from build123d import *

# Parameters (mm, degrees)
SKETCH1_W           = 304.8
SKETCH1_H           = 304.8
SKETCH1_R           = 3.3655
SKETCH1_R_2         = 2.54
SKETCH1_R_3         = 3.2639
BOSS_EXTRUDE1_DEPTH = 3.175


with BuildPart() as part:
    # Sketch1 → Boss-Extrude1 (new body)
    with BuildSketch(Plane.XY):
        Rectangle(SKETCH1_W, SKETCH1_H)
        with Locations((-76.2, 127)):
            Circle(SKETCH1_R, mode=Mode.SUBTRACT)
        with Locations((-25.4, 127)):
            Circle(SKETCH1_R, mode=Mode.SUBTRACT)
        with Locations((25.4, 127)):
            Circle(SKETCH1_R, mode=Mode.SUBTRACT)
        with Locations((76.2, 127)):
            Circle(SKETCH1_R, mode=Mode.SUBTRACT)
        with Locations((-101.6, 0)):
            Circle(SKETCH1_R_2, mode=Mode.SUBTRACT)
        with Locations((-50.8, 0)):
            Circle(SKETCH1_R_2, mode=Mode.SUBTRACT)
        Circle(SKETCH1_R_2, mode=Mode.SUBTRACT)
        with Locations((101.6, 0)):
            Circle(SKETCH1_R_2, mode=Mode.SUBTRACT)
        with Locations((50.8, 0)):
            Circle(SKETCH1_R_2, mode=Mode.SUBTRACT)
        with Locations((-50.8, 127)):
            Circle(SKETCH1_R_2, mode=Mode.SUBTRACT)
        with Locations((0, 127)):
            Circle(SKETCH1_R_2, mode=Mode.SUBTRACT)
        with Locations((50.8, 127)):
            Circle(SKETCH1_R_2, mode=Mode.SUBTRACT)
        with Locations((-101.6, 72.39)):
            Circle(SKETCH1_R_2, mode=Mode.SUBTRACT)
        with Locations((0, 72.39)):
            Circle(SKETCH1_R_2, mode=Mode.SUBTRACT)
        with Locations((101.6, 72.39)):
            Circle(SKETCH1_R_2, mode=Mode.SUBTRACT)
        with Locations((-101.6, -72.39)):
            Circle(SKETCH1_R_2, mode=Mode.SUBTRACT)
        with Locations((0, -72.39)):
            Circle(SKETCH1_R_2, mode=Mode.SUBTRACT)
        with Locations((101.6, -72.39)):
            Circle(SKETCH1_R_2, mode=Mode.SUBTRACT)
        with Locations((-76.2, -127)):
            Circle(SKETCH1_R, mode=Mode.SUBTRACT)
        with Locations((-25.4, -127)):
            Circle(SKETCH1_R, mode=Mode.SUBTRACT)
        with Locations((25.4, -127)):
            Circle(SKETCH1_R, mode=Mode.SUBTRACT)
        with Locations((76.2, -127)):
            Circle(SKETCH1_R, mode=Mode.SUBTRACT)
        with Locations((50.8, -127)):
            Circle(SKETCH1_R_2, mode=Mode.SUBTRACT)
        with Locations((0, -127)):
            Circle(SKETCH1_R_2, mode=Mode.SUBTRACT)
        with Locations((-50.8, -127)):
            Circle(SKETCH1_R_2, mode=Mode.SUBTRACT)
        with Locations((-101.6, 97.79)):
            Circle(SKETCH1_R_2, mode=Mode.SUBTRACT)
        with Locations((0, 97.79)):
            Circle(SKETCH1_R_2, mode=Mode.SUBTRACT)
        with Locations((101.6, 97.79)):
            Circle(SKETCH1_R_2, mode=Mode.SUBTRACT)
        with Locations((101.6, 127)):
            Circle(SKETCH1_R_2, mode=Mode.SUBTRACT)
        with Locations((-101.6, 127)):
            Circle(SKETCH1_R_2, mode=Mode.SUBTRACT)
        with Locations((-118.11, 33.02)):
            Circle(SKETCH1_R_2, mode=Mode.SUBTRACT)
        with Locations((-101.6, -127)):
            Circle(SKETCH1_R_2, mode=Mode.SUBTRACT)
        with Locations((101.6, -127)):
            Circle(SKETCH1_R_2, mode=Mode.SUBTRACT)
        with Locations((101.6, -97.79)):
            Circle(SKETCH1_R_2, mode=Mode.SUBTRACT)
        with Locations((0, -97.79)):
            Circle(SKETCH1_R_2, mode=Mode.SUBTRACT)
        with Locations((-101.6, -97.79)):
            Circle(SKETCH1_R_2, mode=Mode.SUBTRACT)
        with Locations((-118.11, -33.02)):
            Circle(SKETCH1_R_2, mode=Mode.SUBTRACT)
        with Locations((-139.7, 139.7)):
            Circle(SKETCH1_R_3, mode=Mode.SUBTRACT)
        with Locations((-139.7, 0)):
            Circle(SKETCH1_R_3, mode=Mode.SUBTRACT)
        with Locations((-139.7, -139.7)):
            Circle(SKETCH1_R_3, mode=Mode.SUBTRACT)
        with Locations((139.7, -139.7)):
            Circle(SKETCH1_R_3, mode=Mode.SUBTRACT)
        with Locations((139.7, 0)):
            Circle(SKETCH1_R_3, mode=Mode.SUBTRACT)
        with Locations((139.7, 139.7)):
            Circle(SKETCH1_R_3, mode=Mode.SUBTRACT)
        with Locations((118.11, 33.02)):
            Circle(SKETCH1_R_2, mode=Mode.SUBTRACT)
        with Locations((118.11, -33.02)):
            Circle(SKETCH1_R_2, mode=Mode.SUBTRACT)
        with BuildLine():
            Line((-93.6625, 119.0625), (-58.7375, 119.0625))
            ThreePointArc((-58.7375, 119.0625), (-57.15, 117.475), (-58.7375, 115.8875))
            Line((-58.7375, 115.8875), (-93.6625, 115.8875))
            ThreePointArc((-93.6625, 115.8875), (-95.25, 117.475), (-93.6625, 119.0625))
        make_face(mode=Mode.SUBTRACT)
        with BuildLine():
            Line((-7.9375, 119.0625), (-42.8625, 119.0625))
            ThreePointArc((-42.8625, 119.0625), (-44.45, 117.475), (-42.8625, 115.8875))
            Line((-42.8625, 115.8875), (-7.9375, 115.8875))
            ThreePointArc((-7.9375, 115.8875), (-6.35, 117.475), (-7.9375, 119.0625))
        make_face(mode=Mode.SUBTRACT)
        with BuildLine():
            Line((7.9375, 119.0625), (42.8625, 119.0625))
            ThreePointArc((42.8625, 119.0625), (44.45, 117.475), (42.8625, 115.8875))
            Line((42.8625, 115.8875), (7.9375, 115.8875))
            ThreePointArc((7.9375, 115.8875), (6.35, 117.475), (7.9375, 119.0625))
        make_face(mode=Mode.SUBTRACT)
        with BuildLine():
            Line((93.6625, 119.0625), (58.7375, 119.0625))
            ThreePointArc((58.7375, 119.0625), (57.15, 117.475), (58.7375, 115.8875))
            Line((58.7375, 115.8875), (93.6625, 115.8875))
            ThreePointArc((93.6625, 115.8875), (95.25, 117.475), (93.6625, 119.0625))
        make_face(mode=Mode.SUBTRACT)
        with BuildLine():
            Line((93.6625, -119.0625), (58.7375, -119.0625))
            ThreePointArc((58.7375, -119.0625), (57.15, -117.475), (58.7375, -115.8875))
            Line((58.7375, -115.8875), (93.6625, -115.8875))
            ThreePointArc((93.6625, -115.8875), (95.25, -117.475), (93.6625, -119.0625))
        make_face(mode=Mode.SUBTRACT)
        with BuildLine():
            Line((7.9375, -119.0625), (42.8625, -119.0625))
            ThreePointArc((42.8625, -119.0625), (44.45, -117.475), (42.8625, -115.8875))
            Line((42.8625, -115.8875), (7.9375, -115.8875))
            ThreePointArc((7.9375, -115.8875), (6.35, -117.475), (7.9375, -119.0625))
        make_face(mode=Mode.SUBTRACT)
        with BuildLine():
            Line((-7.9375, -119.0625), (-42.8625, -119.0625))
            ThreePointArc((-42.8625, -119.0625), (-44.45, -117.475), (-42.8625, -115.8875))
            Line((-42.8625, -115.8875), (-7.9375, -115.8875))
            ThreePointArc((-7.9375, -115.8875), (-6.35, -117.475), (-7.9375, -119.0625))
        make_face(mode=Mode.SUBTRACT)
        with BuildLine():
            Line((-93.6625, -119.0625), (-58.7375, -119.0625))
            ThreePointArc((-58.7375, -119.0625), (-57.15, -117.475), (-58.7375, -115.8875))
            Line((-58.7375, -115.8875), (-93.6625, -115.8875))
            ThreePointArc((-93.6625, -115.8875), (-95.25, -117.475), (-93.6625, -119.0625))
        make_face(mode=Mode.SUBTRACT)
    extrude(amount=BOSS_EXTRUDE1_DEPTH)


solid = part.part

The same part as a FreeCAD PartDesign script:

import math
import FreeCAD as App
import Part
import Sketcher
Q = App.Units.Quantity


def add_polygon(sketch, points):
    """Adds a closed chain of lines whose ends are joined by coincident constraints."""
    first, n = sketch.GeometryCount, len(points)
    for a, b in zip(points, points[1:] + points[:1]):
        sketch.addGeometry(Part.LineSegment(App.Vector(*a, 0), App.Vector(*b, 0)), False)
    for i in range(n):
        sketch.addConstraint(Sketcher.Constraint("Coincident", first + i, 2, first + (i + 1) % n, 1))

doc = App.newDocument("Part")
body = doc.addObject("PartDesign::Body", "Body")

sketch1 = body.newObject("Sketcher::SketchObject", "Sketch")
sketch1.AttachmentSupport = (doc.getObject("XY_Plane"), [""])
sketch1.MapMode = "FlatFace"
add_polygon(sketch1, [(-152.4, 152.4), (-152.4, -152.4), (152.4, -152.4), (152.4, 152.4)])
sketch1.addGeometry(Part.Circle(App.Vector(-139.7, -139.7, 0), App.Vector(0, 0, 1), 3.2639), False)
sketch1.addGeometry(Part.Circle(App.Vector(-101.6, -127, 0), App.Vector(0, 0, 1), 2.54), False)
sketch1.addGeometry(Part.Circle(App.Vector(-76.2, -127, 0), App.Vector(0, 0, 1), 3.3655), False)
sketch1.addGeometry(Part.LineSegment(App.Vector(-58.7375, -119.0625, 0), App.Vector(-93.6625, -119.0625, 0)), False)
sketch1.addGeometry(Part.ArcOfCircle(Part.Circle(App.Vector(-93.6625, -117.475, 0), App.Vector(0, 0, 1), 1.5875), math.radians(90), math.radians(270)), False)
sketch1.addGeometry(Part.LineSegment(App.Vector(-93.6625, -115.8875, 0), App.Vector(-58.7375, -115.8875, 0)), False)
sketch1.addGeometry(Part.ArcOfCircle(Part.Circle(App.Vector(-58.7375, -117.475, 0), App.Vector(0, 0, 1), 1.5875), math.radians(-90), math.radians(90)), False)
sketch1.addGeometry(Part.Circle(App.Vector(-101.6, -97.79, 0), App.Vector(0, 0, 1), 2.54), False)
sketch1.addGeometry(Part.Circle(App.Vector(-101.6, -72.39, 0), App.Vector(0, 0, 1), 2.54), False)
sketch1.addGeometry(Part.Circle(App.Vector(-50.8, -127, 0), App.Vector(0, 0, 1), 2.54), False)
sketch1.addGeometry(Part.Circle(App.Vector(-25.4, -127, 0), App.Vector(0, 0, 1), 3.3655), False)
sketch1.addGeometry(Part.ArcOfCircle(Part.Circle(App.Vector(-7.9375, -117.475, 0), App.Vector(0, 0, 1), 1.5875), math.radians(-90), math.radians(90)), False)
sketch1.addGeometry(Part.LineSegment(App.Vector(-7.9375, -119.0625, 0), App.Vector(-42.8625, -119.0625, 0)), False)
sketch1.addGeometry(Part.ArcOfCircle(Part.Circle(App.Vector(-42.8625, -117.475, 0), App.Vector(0, 0, 1), 1.5875), math.radians(90), math.radians(270)), False)
sketch1.addGeometry(Part.LineSegment(App.Vector(-42.8625, -115.8875, 0), App.Vector(-7.9375, -115.8875, 0)), False)
sketch1.addGeometry(Part.Circle(App.Vector(-118.11, -33.02, 0), App.Vector(0, 0, 1), 2.54), False)
sketch1.addGeometry(Part.Circle(App.Vector(0, -127, 0), App.Vector(0, 0, 1), 2.54), False)
sketch1.addGeometry(Part.Circle(App.Vector(25.4, -127, 0), App.Vector(0, 0, 1), 3.3655), False)
sketch1.addGeometry(Part.LineSegment(App.Vector(42.8625, -119.0625, 0), App.Vector(7.9375, -119.0625, 0)), False)
sketch1.addGeometry(Part.ArcOfCircle(Part.Circle(App.Vector(7.9375, -117.475, 0), App.Vector(0, 0, 1), 1.5875), math.radians(90), math.radians(270)), False)
sketch1.addGeometry(Part.LineSegment(App.Vector(7.9375, -115.8875, 0), App.Vector(42.8625, -115.8875, 0)), False)
sketch1.addGeometry(Part.ArcOfCircle(Part.Circle(App.Vector(42.8625, -117.475, 0), App.Vector(0, 0, 1), 1.5875), math.radians(-90), math.radians(90)), False)
sketch1.addGeometry(Part.Circle(App.Vector(50.8, -127, 0), App.Vector(0, 0, 1), 2.54), False)
sketch1.addGeometry(Part.Circle(App.Vector(0, -97.79, 0), App.Vector(0, 0, 1), 2.54), False)
sketch1.addGeometry(Part.Circle(App.Vector(0, -72.39, 0), App.Vector(0, 0, 1), 2.54), False)
sketch1.addGeometry(Part.Circle(App.Vector(76.2, -127, 0), App.Vector(0, 0, 1), 3.3655), False)
sketch1.addGeometry(Part.Circle(App.Vector(101.6, -127, 0), App.Vector(0, 0, 1), 2.54), False)
sketch1.addGeometry(Part.ArcOfCircle(Part.Circle(App.Vector(93.6625, -117.475, 0), App.Vector(0, 0, 1), 1.5875), math.radians(-90), math.radians(90)), False)
sketch1.addGeometry(Part.LineSegment(App.Vector(93.6625, -119.0625, 0), App.Vector(58.7375, -119.0625, 0)), False)
sketch1.addGeometry(Part.ArcOfCircle(Part.Circle(App.Vector(58.7375, -117.475, 0), App.Vector(0, 0, 1), 1.5875), math.radians(90), math.radians(270)), False)
sketch1.addGeometry(Part.LineSegment(App.Vector(58.7375, -115.8875, 0), App.Vector(93.6625, -115.8875, 0)), False)
sketch1.addGeometry(Part.Circle(App.Vector(139.7, -139.7, 0), App.Vector(0, 0, 1), 3.2639), False)
sketch1.addGeometry(Part.Circle(App.Vector(101.6, -97.79, 0), App.Vector(0, 0, 1), 2.54), False)
sketch1.addGeometry(Part.Circle(App.Vector(101.6, -72.39, 0), App.Vector(0, 0, 1), 2.54), False)
sketch1.addGeometry(Part.Circle(App.Vector(118.11, -33.02, 0), App.Vector(0, 0, 1), 2.54), False)
sketch1.addGeometry(Part.Circle(App.Vector(-139.7, 0, 0), App.Vector(0, 0, 1), 3.2639), False)
sketch1.addGeometry(Part.Circle(App.Vector(-118.11, 33.02, 0), App.Vector(0, 0, 1), 2.54), False)
sketch1.addGeometry(Part.Circle(App.Vector(-101.6, 0, 0), App.Vector(0, 0, 1), 2.54), False)
sketch1.addGeometry(Part.Circle(App.Vector(-50.8, 0, 0), App.Vector(0, 0, 1), 2.54), False)
sketch1.addGeometry(Part.Circle(App.Vector(-101.6, 72.39, 0), App.Vector(0, 0, 1), 2.54), False)
sketch1.addGeometry(Part.Circle(App.Vector(-101.6, 97.79, 0), App.Vector(0, 0, 1), 2.54), False)
sketch1.addGeometry(Part.Circle(App.Vector(-139.7, 139.7, 0), App.Vector(0, 0, 1), 3.2639), False)
sketch1.addGeometry(Part.ArcOfCircle(Part.Circle(App.Vector(-93.6625, 117.475, 0), App.Vector(0, 0, 1), 1.5875), math.radians(90), math.radians(270)), False)
sketch1.addGeometry(Part.LineSegment(App.Vector(-93.6625, 119.0625, 0), App.Vector(-58.7375, 119.0625, 0)), False)
sketch1.addGeometry(Part.ArcOfCircle(Part.Circle(App.Vector(-58.7375, 117.475, 0), App.Vector(0, 0, 1), 1.5875), math.radians(-90), math.radians(90)), False)
sketch1.addGeometry(Part.LineSegment(App.Vector(-58.7375, 115.8875, 0), App.Vector(-93.6625, 115.8875, 0)), False)
sketch1.addGeometry(Part.Circle(App.Vector(-101.6, 127, 0), App.Vector(0, 0, 1), 2.54), False)
sketch1.addGeometry(Part.Circle(App.Vector(-76.2, 127, 0), App.Vector(0, 0, 1), 3.3655), False)
sketch1.addGeometry(Part.Circle(App.Vector(-50.8, 127, 0), App.Vector(0, 0, 1), 2.54), False)
sketch1.addGeometry(Part.LineSegment(App.Vector(-42.8625, 119.0625, 0), App.Vector(-7.9375, 119.0625, 0)), False)
sketch1.addGeometry(Part.ArcOfCircle(Part.Circle(App.Vector(-7.9375, 117.475, 0), App.Vector(0, 0, 1), 1.5875), math.radians(-90), math.radians(90)), False)
sketch1.addGeometry(Part.LineSegment(App.Vector(-7.9375, 115.8875, 0), App.Vector(-42.8625, 115.8875, 0)), False)
sketch1.addGeometry(Part.ArcOfCircle(Part.Circle(App.Vector(-42.8625, 117.475, 0), App.Vector(0, 0, 1), 1.5875), math.radians(90), math.radians(270)), False)
sketch1.addGeometry(Part.Circle(App.Vector(-25.4, 127, 0), App.Vector(0, 0, 1), 3.3655), False)
sketch1.addGeometry(Part.Circle(App.Vector(0, 0, 0), App.Vector(0, 0, 1), 2.54), False)
sketch1.addGeometry(Part.Circle(App.Vector(50.8, 0, 0), App.Vector(0, 0, 1), 2.54), False)
sketch1.addGeometry(Part.Circle(App.Vector(101.6, 0, 0), App.Vector(0, 0, 1), 2.54), False)
sketch1.addGeometry(Part.Circle(App.Vector(139.7, 0, 0), App.Vector(0, 0, 1), 3.2639), False)
sketch1.addGeometry(Part.Circle(App.Vector(118.11, 33.02, 0), App.Vector(0, 0, 1), 2.54), False)
sketch1.addGeometry(Part.Circle(App.Vector(0, 72.39, 0), App.Vector(0, 0, 1), 2.54), False)
sketch1.addGeometry(Part.Circle(App.Vector(0, 97.79, 0), App.Vector(0, 0, 1), 2.54), False)
sketch1.addGeometry(Part.ArcOfCircle(Part.Circle(App.Vector(7.9375, 117.475, 0), App.Vector(0, 0, 1), 1.5875), math.radians(90), math.radians(270)), False)
sketch1.addGeometry(Part.LineSegment(App.Vector(7.9375, 119.0625, 0), App.Vector(42.8625, 119.0625, 0)), False)
sketch1.addGeometry(Part.ArcOfCircle(Part.Circle(App.Vector(42.8625, 117.475, 0), App.Vector(0, 0, 1), 1.5875), math.radians(-90), math.radians(90)), False)
sketch1.addGeometry(Part.LineSegment(App.Vector(42.8625, 115.8875, 0), App.Vector(7.9375, 115.8875, 0)), False)
sketch1.addGeometry(Part.Circle(App.Vector(0, 127, 0), App.Vector(0, 0, 1), 2.54), False)
sketch1.addGeometry(Part.Circle(App.Vector(25.4, 127, 0), App.Vector(0, 0, 1), 3.3655), False)
sketch1.addGeometry(Part.Circle(App.Vector(50.8, 127, 0), App.Vector(0, 0, 1), 2.54), False)
sketch1.addGeometry(Part.Circle(App.Vector(101.6, 72.39, 0), App.Vector(0, 0, 1), 2.54), False)
sketch1.addGeometry(Part.Circle(App.Vector(101.6, 97.79, 0), App.Vector(0, 0, 1), 2.54), False)
sketch1.addGeometry(Part.LineSegment(App.Vector(58.7375, 119.0625, 0), App.Vector(93.6625, 119.0625, 0)), False)
sketch1.addGeometry(Part.ArcOfCircle(Part.Circle(App.Vector(93.6625, 117.475, 0), App.Vector(0, 0, 1), 1.5875), math.radians(-90), math.radians(90)), False)
sketch1.addGeometry(Part.LineSegment(App.Vector(93.6625, 115.8875, 0), App.Vector(58.7375, 115.8875, 0)), False)
sketch1.addGeometry(Part.ArcOfCircle(Part.Circle(App.Vector(58.7375, 117.475, 0), App.Vector(0, 0, 1), 1.5875), math.radians(90), math.radians(270)), False)
sketch1.addGeometry(Part.Circle(App.Vector(76.2, 127, 0), App.Vector(0, 0, 1), 3.3655), False)
sketch1.addGeometry(Part.Circle(App.Vector(101.6, 127, 0), App.Vector(0, 0, 1), 2.54), False)
sketch1.addGeometry(Part.Circle(App.Vector(139.7, 139.7, 0), App.Vector(0, 0, 1), 3.2639), False)
sketch1.addConstraint([
    Sketcher.Constraint("Tangent", 7, 2, 8, 2),
    Sketcher.Constraint("Tangent", 8, 1, 9, 1),
    Sketcher.Constraint("Tangent", 9, 2, 10, 2),
    Sketcher.Constraint("Tangent", 10, 1, 7, 1),
    Sketcher.Constraint("Tangent", 15, 1, 16, 1),
    Sketcher.Constraint("Tangent", 16, 2, 17, 2),
    Sketcher.Constraint("Tangent", 17, 1, 18, 1),
    Sketcher.Constraint("Tangent", 18, 2, 15, 2),
    Sketcher.Constraint("Tangent", 22, 2, 23, 2),
    Sketcher.Constraint("Tangent", 23, 1, 24, 1),
    Sketcher.Constraint("Tangent", 24, 2, 25, 2),
    Sketcher.Constraint("Tangent", 25, 1, 22, 1),
    Sketcher.Constraint("Tangent", 31, 1, 32, 1),
    Sketcher.Constraint("Tangent", 32, 2, 33, 2),
    Sketcher.Constraint("Tangent", 33, 1, 34, 1),
    Sketcher.Constraint("Tangent", 34, 2, 31, 2),
    Sketcher.Constraint("Tangent", 46, 1, 47, 1),
    Sketcher.Constraint("Tangent", 47, 2, 48, 2),
    Sketcher.Constraint("Tangent", 48, 1, 49, 1),
    Sketcher.Constraint("Tangent", 49, 2, 46, 2),
    Sketcher.Constraint("Tangent", 53, 2, 54, 2),
    Sketcher.Constraint("Tangent", 54, 1, 55, 1),
    Sketcher.Constraint("Tangent", 55, 2, 56, 2),
    Sketcher.Constraint("Tangent", 56, 1, 53, 1),
    Sketcher.Constraint("Tangent", 65, 1, 66, 1),
    Sketcher.Constraint("Tangent", 66, 2, 67, 2),
    Sketcher.Constraint("Tangent", 67, 1, 68, 1),
    Sketcher.Constraint("Tangent", 68, 2, 65, 2),
    Sketcher.Constraint("Tangent", 74, 2, 75, 2),
    Sketcher.Constraint("Tangent", 75, 1, 76, 1),
    Sketcher.Constraint("Tangent", 76, 2, 77, 2),
    Sketcher.Constraint("Tangent", 77, 1, 74, 1),
    Sketcher.Constraint("Vertical", 0),
    Sketcher.Constraint("Horizontal", 1),
    Sketcher.Constraint("Vertical", 2),
    Sketcher.Constraint("Horizontal", 3),
    Sketcher.Constraint("Horizontal", 7),
    Sketcher.Constraint("Horizontal", 9),
    Sketcher.Constraint("Horizontal", 16),
    Sketcher.Constraint("Horizontal", 18),
    Sketcher.Constraint("Horizontal", 22),
    Sketcher.Constraint("Horizontal", 24),
    Sketcher.Constraint("Horizontal", 32),
    Sketcher.Constraint("Horizontal", 34),
    Sketcher.Constraint("Horizontal", 47),
    Sketcher.Constraint("Horizontal", 49),
    Sketcher.Constraint("Horizontal", 53),
    Sketcher.Constraint("Horizontal", 55),
    Sketcher.Constraint("Horizontal", 66),
    Sketcher.Constraint("Horizontal", 68),
    Sketcher.Constraint("Horizontal", 74),
    Sketcher.Constraint("Horizontal", 76),
    Sketcher.Constraint("Coincident", 58, 3, -1, 1),
    Sketcher.Constraint("Equal", 5, 11),
    Sketcher.Constraint("Equal", 11, 12),
    Sketcher.Constraint("Equal", 12, 13),
    Sketcher.Constraint("Equal", 6, 14),
    Sketcher.Constraint("Equal", 10, 15),
    Sketcher.Constraint("Equal", 13, 19),
    Sketcher.Constraint("Equal", 19, 20),
    Sketcher.Constraint("Equal", 14, 21),
    Sketcher.Constraint("Equal", 17, 23),
    Sketcher.Constraint("Equal", 20, 26),
    Sketcher.Constraint("Equal", 26, 27),
    Sketcher.Constraint("Equal", 27, 28),
    Sketcher.Constraint("Equal", 21, 29),
    Sketcher.Constraint("Equal", 28, 30),
    Sketcher.Constraint("Equal", 25, 31),
    Sketcher.Constraint("Equal", 4, 35),
    Sketcher.Constraint("Equal", 30, 36),
    Sketcher.Constraint("Equal", 36, 37),
    Sketcher.Constraint("Equal", 37, 38),
    Sketcher.Constraint("Equal", 35, 39),
    Sketcher.Constraint("Equal", 38, 40),
    Sketcher.Constraint("Equal", 40, 41),
    Sketcher.Constraint("Equal", 41, 42),
    Sketcher.Constraint("Equal", 42, 43),
    Sketcher.Constraint("Equal", 43, 44),
    Sketcher.Constraint("Equal", 39, 45),
    Sketcher.Constraint("Equal", 33, 46),
    Sketcher.Constraint("Equal", 44, 50),
    Sketcher.Constraint("Equal", 29, 51),
    Sketcher.Constraint("Equal", 50, 52),
    Sketcher.Constraint("Equal", 48, 54),
    Sketcher.Constraint("Equal", 51, 57),
    Sketcher.Constraint("Equal", 52, 58),
    Sketcher.Constraint("Equal", 58, 59),
    Sketcher.Constraint("Equal", 59, 60),
    Sketcher.Constraint("Equal", 45, 61),
    Sketcher.Constraint("Equal", 60, 62),
    Sketcher.Constraint("Equal", 62, 63),
    Sketcher.Constraint("Equal", 63, 64),
    Sketcher.Constraint("Equal", 56, 65),
    Sketcher.Constraint("Equal", 64, 69),
    Sketcher.Constraint("Equal", 57, 70),
    Sketcher.Constraint("Equal", 69, 71),
    Sketcher.Constraint("Equal", 71, 72),
    Sketcher.Constraint("Equal", 72, 73),
    Sketcher.Constraint("Equal", 67, 75),
    Sketcher.Constraint("Equal", 70, 78),
    Sketcher.Constraint("Equal", 73, 79),
    Sketcher.Constraint("Equal", 61, 80),
    Sketcher.Constraint("Symmetric", 38, 3, 40, 3, -1, 1),
    Sketcher.Constraint("Symmetric", 37, 3, 43, 3, -1, 1),
    Sketcher.Constraint("Symmetric", 36, 3, 44, 3, -1, 1),
    Sketcher.Constraint("Symmetric", 35, 3, 45, 3, -1, 1),
    Sketcher.Constraint("Symmetric", 31, 3, 46, 3, -1, 1),
    Sketcher.Constraint("Symmetric", 30, 3, 50, 3, -1, 1),
    Sketcher.Constraint("Symmetric", 29, 3, 51, 3, -1, 1),
    Sketcher.Constraint("Symmetric", 26, 3, 52, 3, -1, 1),
    Sketcher.Constraint("Symmetric", 23, 3, 54, 3, -1, 1),
    Sketcher.Constraint("Symmetric", 21, 3, 57, 3, -1, 1),
    Sketcher.Constraint("Symmetric", 42, 3, 59, 3, -1, 1),
    Sketcher.Constraint("Symmetric", 41, 3, 60, 3, -1, 1),
    Sketcher.Constraint("Symmetric", 39, 3, 61, 3, -1, 1),
    Sketcher.Constraint("Symmetric", 19, 3, 62, 3, -1, 1),
    Sketcher.Constraint("Symmetric", 28, 3, 63, 3, -1, 1),
    Sketcher.Constraint("Symmetric", 27, 3, 64, 3, -1, 1),
    Sketcher.Constraint("Symmetric", 15, 3, 65, 3, -1, 1),
    Sketcher.Constraint("Symmetric", 20, 3, 69, 3, -1, 1),
    Sketcher.Constraint("Symmetric", 14, 3, 70, 3, -1, 1),
    Sketcher.Constraint("Symmetric", 13, 3, 71, 3, -1, 1),
    Sketcher.Constraint("Symmetric", 12, 3, 72, 3, -1, 1),
    Sketcher.Constraint("Symmetric", 11, 3, 73, 3, -1, 1),
    Sketcher.Constraint("Symmetric", 8, 3, 75, 3, -1, 1),
    Sketcher.Constraint("Symmetric", 6, 3, 78, 3, -1, 1),
    Sketcher.Constraint("Symmetric", 5, 3, 79, 3, -1, 1),
    Sketcher.Constraint("Symmetric", 4, 3, 80, 3, -1, 1),
    Sketcher.Constraint("Symmetric", 0, 2, 2, 2, -1, 1),
    Sketcher.Constraint("Symmetric", 14, 3, 21, 3, -2),
    Sketcher.Constraint("Symmetric", 15, 3, 23, 3, -2),
    Sketcher.Constraint("Symmetric", 13, 3, 26, 3, -2),
    Sketcher.Constraint("Symmetric", 6, 3, 29, 3, -2),
    Sketcher.Constraint("Symmetric", 5, 3, 30, 3, -2),
    Sketcher.Constraint("Symmetric", 8, 3, 31, 3, -2),
    Sketcher.Constraint("Symmetric", 4, 3, 35, 3, -2),
    Sketcher.Constraint("Symmetric", 11, 3, 36, 3, -2),
    Sketcher.Constraint("Symmetric", 12, 3, 37, 3, -2),
    Sketcher.Constraint("Symmetric", 19, 3, 38, 3, -2),
    Sketcher.Constraint("PointOnObject", 20, 3, -2),
    Sketcher.Constraint("PointOnObject", 27, 3, -2),
    Sketcher.Constraint("PointOnObject", 28, 3, -2),
    Sketcher.Constraint("PointOnObject", 39, 3, -1),
    Sketcher.Constraint("PointOnObject", 41, 3, -1),
    Sketcher.Constraint("PointOnObject", 42, 3, -1),
    Sketcher.Constraint("Horizontal", 5, 3, 6, 3),
    Sketcher.Constraint("Horizontal", 6, 3, 13, 3),
    Sketcher.Constraint("Horizontal", 13, 3, 14, 3),
    Sketcher.Constraint("Horizontal", 10, 3, 15, 3),
    Sketcher.Constraint("Horizontal", 14, 3, 20, 3),
    Sketcher.Constraint("Horizontal", 11, 3, 27, 3),
    Sketcher.Constraint("Horizontal", 12, 3, 28, 3),
    Sketcher.Constraint("Vertical", 5, 3, 11, 3),
    Sketcher.Constraint("Vertical", 11, 3, 12, 3),
    Sketcher.Constraint("Vertical", 4, 3, 39, 3),
    Sketcher.Constraint("Vertical", 12, 3, 41, 3),
    Sketcher.Constraint("Vertical", 13, 3, 42, 3),
    Sketcher.Constraint("Vertical", 10, 3, 48, 3),
    Sketcher.Constraint("Vertical", 17, 3, 56, 3),
    Sketcher.Constraint("Vertical", 25, 3, 67, 3),
    Sketcher.Constraint("Vertical", 33, 3, 77, 3),
    Sketcher.Constraint("Equal", 9, 16),
    Sketcher.Constraint("Equal", 18, 22),
    Sketcher.Constraint("Equal", 24, 32),
    Sketcher.Constraint("Equal", 3, 0),
    Sketcher.Constraint("Diameter", 5, Q("0.2 in")),
    Sketcher.Constraint("DistanceX", 1, 1, 1, 2, Q("12 in")),
    Sketcher.Constraint("Diameter", 4, Q("0.257 in")),
    Sketcher.Constraint("Diameter", 6, Q("0.265 in")),
    Sketcher.Constraint("DistanceX", 5, 3, -1, 1, Q("4 in")),
    Sketcher.Constraint("DistanceY", 5, 3, -1, 1, Q("5 in")),
    Sketcher.Constraint("DistanceX", 6, 3, -1, 1, Q("3 in")),
    Sketcher.Constraint("DistanceX", 13, 3, -1, 1, Q("2 in")),
    Sketcher.Constraint("DistanceX", 14, 3, -1, 1, Q("1 in")),
    Sketcher.Constraint("Radius", 8, Q("0.0625 in")),
    Sketcher.Constraint("DistanceX", 4, 3, -1, 1, Q("5.5 in")),
    Sketcher.Constraint("DistanceY", 4, 3, -1, 1, Q("5.5 in")),
    Sketcher.Constraint("DistanceY", 19, 3, -1, 1, Q("1.3 in")),
    Sketcher.Constraint("DistanceX", 7, 2, 7, 1, Q("1.375 in")),
    Sketcher.Constraint("DistanceY", 11, 3, -1, 1, Q("3.85 in")),
    Sketcher.Constraint("DistanceY", 12, 3, -1, 1, Q("2.85 in")),
    Sketcher.Constraint("DistanceX", 19, 3, -1, 1, Q("4.65 in")),
    Sketcher.Constraint("DistanceX", 8, 3, -1, 1, Q("3.6875 in")),
    Sketcher.Constraint("DistanceY", 8, 3, -1, 1, Q("4.625 in")),
    Sketcher.Constraint("DistanceX", 15, 3, -1, 1, Q("0.3125 in")),
])
pad1 = body.newObject("PartDesign::Pad", "Pad")
pad1.Profile = sketch1
pad1.Length = Q("0.125 in")

doc.recompute()
